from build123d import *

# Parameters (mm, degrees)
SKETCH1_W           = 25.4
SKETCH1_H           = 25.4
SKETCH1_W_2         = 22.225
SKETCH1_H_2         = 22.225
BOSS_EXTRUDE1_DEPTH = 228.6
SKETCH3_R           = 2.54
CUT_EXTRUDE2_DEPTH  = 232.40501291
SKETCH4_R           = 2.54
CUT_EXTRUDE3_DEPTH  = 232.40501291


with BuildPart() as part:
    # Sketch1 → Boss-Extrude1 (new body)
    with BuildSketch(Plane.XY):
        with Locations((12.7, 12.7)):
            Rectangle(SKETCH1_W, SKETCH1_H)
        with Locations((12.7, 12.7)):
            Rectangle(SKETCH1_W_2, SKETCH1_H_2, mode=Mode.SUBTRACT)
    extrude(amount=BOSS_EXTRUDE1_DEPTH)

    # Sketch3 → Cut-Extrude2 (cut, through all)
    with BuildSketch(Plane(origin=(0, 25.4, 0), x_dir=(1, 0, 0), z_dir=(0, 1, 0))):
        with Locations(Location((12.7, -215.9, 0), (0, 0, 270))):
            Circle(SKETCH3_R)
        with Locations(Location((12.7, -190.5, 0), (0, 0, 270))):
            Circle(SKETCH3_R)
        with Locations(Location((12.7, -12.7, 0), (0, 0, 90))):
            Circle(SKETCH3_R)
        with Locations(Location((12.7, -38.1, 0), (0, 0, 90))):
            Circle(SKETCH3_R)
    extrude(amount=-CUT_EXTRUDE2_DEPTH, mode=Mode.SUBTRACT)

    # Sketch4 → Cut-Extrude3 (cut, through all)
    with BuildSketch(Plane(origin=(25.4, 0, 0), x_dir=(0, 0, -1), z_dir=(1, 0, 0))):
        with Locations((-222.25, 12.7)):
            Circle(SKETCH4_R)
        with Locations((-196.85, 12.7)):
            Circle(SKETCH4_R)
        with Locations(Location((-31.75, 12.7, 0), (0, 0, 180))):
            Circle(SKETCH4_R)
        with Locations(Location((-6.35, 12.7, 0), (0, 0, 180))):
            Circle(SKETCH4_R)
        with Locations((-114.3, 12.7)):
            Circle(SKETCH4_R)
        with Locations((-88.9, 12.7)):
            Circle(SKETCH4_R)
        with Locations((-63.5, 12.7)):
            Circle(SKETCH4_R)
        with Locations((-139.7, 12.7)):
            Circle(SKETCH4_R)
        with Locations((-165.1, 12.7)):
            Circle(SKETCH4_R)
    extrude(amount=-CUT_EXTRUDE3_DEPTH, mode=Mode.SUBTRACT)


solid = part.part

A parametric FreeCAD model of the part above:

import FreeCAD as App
import Part
import Sketcher
from FreeCAD import Vector
Q = App.Units.Quantity


def add_polygon(sketch, points):
    """Adds a closed chain of lines whose ends are joined by coincident constraints."""
    first, n = sketch.GeometryCount, len(points)
    for a, b in zip(points, points[1:] + points[:1]):
        sketch.addGeometry(Part.LineSegment(App.Vector(*a, 0), App.Vector(*b, 0)), False)
    for i in range(n):
        sketch.addConstraint(Sketcher.Constraint("Coincident", first + i, 2, first + (i + 1) % n, 1))

doc = App.newDocument("Part")
body = doc.addObject("PartDesign::Body", "Body")

# Sketch on XY plane
sketch1 = body.newObject("Sketcher::SketchObject", "Sketch")
sketch1.AttachmentSupport = (doc.getObject("XY_Plane"), [""])
sketch1.MapMode = "FlatFace"
add_polygon(sketch1, [(0, 25), (0, 0), (25, 0), (25, 25)])  # lines 0-3
add_polygon(sketch1, [(24, 2), (2, 2), (2, 24), (24, 24)])  # lines 4-7
sketch1.addConstraint([
    Sketcher.Constraint("Vertical", 0),
    Sketcher.Constraint("Horizontal", 1),
    Sketcher.Constraint("Vertical", 2),
    Sketcher.Constraint("Horizontal", 3),
    Sketcher.Constraint("Horizontal", 4),
    Sketcher.Constraint("Vertical", 5),
    Sketcher.Constraint("Horizontal", 6),
    Sketcher.Constraint("Vertical", 7),
    Sketcher.Constraint("Coincident", 0, 2, -1, 1),
    Sketcher.Constraint("Equal", 3, 0),
    Sketcher.Constraint("Equal", 6, 5),
    Sketcher.Constraint("DistanceX", 1, 1, 1, 2, Q("1 in")),
    Sketcher.Constraint("DistanceX", 4, 2, 4, 1, Q("0.875 in")),
    Sketcher.Constraint("DistanceX", -1, 1, 4, 2, Q("0.0625 in")),
    Sketcher.Constraint("DistanceY", -1, 1, 4, 2, Q("0.0625 in")),
])
pad1 = body.newObject("PartDesign::Pad", "Pad")
pad1.Profile = sketch1
pad1.Length = Q("9 in")

# Sketch on XZ plane
sketch2 = body.newObject("Sketcher::SketchObject", "Sketch001")
sketch2.AttachmentSupport = (doc.getObject("XZ_Plane"), [""])
sketch2.MapMode = "FlatFace"
sketch2.AttachmentOffset = App.Placement(Vector(0, 0, -1 * 25.4), App.Rotation())
sketch2.addGeometry([
    Part.Circle(Vector(12.7, 215.9, 0), Vector(0, 0, 1), 2.5),
    Part.Circle(Vector(12.7, 190.5, 0), Vector(0, 0, 1), 2.5),
    Part.Circle(Vector(12.7, 12.7, 0), Vector(0, 0, 1), 2.5),
    Part.Circle(Vector(12.7, 38.1, 0), Vector(0, 0, 1), 2.5),
], False)
sketch2.addConstraint([
    Sketcher.Constraint("Equal", 0, 1),
    Sketcher.Constraint("Equal", 1, 2),
    Sketcher.Constraint("Equal", 2, 3),
    Sketcher.Constraint("Vertical", 0, 3, 1, 3),
    Sketcher.Constraint("Vertical", 1, 3, 2, 3),
    Sketcher.Constraint("Vertical", 2, 3, 3, 3),
    Sketcher.Constraint("Diameter", 0, Q("0.2 in")),
    Sketcher.Constraint("DistanceY", 1, 3, 0, 3, Q("1 in")),
    Sketcher.Constraint("DistanceY", 2, 3, 1, 3, Q("7 in")),
    Sketcher.Constraint("DistanceY", 2, 3, 3, 3, Q("1 in")),
    Sketcher.Constraint("DistanceX", -1, 1, 0, 3, Q("0.5 in")),
    Sketcher.Constraint("DistanceY", -1, 1, 0, 3, Q("8.5 in")),
])
pocket1 = body.newObject("PartDesign::Pocket", "Pocket")
pocket1.Profile = sketch2
pocket1.Type = "ThroughAll"
pocket1.Reversed = True

# Sketch on YZ plane
sketch3 = body.newObject("Sketcher::SketchObject", "Sketch002")
sketch3.AttachmentSupport = (doc.getObject("YZ_Plane"), [""])
sketch3.MapMode = "FlatFace"
sketch3.AttachmentOffset = App.Placement(Vector(0, 0, 1 * 25.4), App.Rotation())
sketch3.addGeometry([
    Part.Circle(Vector(12.7, 222.2, 0), Vector(0, 0, 1), 2.5),  # 0
    Part.Circle(Vector(12.7, 196.8, 0), Vector(0, 0, 1), 2.5),  # 1
    Part.Circle(Vector(12.7, 31.8, 0), Vector(0, 0, 1), 2.5),  # 2
    Part.Circle(Vector(12.7, 6.3, 0), Vector(0, 0, 1), 2.5),  # 3
    Part.Circle(Vector(12.7, 114.3, 0), Vector(0, 0, 1), 2.5),  # 4
    Part.Circle(Vector(12.7, 88.9, 0), Vector(0, 0, 1), 2.5),  # 5
    Part.Circle(Vector(12.7, 63.5, 0), Vector(0, 0, 1), 2.5),  # 6
    Part.Circle(Vector(12.7, 139.7, 0), Vector(0, 0, 1), 2.5),  # 7
    Part.Circle(Vector(12.7, 165.1, 0), Vector(0, 0, 1), 2.5),  # 8
], False)
sketch3.addConstraint([
    Sketcher.Constraint("Equal", 0, 1),
    Sketcher.Constraint("Equal", 1, 2),
    Sketcher.Constraint("Equal", 2, 3),
    Sketcher.Constraint("Equal", 3, 4),
    Sketcher.Constraint("Equal", 4, 5),
    Sketcher.Constraint("Equal", 5, 6),
    Sketcher.Constraint("Equal", 6, 7),
    Sketcher.Constraint("Equal", 7, 8),
    Sketcher.Constraint("Vertical", 0, 3, 1, 3),
    Sketcher.Constraint("Vertical", 1, 3, 2, 3),
    Sketcher.Constraint("Vertical", 2, 3, 3, 3),
    Sketcher.Constraint("Vertical", 3, 3, 4, 3),
    Sketcher.Constraint("Vertical", 4, 3, 5, 3),
    Sketcher.Constraint("Vertical", 5, 3, 6, 3),
    Sketcher.Constraint("Vertical", 6, 3, 7, 3),
    Sketcher.Constraint("Vertical", 7, 3, 8, 3),
    Sketcher.Constraint("Diameter", 0, Q("0.2 in")),
    Sketcher.Constraint("DistanceY", 1, 3, 0, 3, Q("1 in")),
    Sketcher.Constraint("DistanceY", 3, 3, 2, 3, Q("1 in")),
    Sketcher.Constraint("DistanceY", 5, 3, 4, 3, Q("1 in")),
    Sketcher.Constraint("DistanceY", 6, 3, 5, 3, Q("1 in")),
    Sketcher.Constraint("DistanceY", 4, 3, 7, 3, Q("1 in")),
    Sketcher.Constraint("DistanceY", 7, 3, 8, 3, Q("1 in")),
    Sketcher.Constraint("DistanceX", -1, 1, 0, 3, Q("0.5 in")),
    Sketcher.Constraint("DistanceY", -1, 1, 4, 3, Q("4.5 in")),
    Sketcher.Constraint("DistanceY", 2, 3, 1, 3, Q("6.5 in")),
    Sketcher.Constraint("DistanceY", -1, 1, 0, 3, Q("8.75 in")),
])
pocket2 = body.newObject("PartDesign::Pocket", "Pocket001")
pocket2.Profile = sketch3
pocket2.Type = "ThroughAll"

doc.recompute()
